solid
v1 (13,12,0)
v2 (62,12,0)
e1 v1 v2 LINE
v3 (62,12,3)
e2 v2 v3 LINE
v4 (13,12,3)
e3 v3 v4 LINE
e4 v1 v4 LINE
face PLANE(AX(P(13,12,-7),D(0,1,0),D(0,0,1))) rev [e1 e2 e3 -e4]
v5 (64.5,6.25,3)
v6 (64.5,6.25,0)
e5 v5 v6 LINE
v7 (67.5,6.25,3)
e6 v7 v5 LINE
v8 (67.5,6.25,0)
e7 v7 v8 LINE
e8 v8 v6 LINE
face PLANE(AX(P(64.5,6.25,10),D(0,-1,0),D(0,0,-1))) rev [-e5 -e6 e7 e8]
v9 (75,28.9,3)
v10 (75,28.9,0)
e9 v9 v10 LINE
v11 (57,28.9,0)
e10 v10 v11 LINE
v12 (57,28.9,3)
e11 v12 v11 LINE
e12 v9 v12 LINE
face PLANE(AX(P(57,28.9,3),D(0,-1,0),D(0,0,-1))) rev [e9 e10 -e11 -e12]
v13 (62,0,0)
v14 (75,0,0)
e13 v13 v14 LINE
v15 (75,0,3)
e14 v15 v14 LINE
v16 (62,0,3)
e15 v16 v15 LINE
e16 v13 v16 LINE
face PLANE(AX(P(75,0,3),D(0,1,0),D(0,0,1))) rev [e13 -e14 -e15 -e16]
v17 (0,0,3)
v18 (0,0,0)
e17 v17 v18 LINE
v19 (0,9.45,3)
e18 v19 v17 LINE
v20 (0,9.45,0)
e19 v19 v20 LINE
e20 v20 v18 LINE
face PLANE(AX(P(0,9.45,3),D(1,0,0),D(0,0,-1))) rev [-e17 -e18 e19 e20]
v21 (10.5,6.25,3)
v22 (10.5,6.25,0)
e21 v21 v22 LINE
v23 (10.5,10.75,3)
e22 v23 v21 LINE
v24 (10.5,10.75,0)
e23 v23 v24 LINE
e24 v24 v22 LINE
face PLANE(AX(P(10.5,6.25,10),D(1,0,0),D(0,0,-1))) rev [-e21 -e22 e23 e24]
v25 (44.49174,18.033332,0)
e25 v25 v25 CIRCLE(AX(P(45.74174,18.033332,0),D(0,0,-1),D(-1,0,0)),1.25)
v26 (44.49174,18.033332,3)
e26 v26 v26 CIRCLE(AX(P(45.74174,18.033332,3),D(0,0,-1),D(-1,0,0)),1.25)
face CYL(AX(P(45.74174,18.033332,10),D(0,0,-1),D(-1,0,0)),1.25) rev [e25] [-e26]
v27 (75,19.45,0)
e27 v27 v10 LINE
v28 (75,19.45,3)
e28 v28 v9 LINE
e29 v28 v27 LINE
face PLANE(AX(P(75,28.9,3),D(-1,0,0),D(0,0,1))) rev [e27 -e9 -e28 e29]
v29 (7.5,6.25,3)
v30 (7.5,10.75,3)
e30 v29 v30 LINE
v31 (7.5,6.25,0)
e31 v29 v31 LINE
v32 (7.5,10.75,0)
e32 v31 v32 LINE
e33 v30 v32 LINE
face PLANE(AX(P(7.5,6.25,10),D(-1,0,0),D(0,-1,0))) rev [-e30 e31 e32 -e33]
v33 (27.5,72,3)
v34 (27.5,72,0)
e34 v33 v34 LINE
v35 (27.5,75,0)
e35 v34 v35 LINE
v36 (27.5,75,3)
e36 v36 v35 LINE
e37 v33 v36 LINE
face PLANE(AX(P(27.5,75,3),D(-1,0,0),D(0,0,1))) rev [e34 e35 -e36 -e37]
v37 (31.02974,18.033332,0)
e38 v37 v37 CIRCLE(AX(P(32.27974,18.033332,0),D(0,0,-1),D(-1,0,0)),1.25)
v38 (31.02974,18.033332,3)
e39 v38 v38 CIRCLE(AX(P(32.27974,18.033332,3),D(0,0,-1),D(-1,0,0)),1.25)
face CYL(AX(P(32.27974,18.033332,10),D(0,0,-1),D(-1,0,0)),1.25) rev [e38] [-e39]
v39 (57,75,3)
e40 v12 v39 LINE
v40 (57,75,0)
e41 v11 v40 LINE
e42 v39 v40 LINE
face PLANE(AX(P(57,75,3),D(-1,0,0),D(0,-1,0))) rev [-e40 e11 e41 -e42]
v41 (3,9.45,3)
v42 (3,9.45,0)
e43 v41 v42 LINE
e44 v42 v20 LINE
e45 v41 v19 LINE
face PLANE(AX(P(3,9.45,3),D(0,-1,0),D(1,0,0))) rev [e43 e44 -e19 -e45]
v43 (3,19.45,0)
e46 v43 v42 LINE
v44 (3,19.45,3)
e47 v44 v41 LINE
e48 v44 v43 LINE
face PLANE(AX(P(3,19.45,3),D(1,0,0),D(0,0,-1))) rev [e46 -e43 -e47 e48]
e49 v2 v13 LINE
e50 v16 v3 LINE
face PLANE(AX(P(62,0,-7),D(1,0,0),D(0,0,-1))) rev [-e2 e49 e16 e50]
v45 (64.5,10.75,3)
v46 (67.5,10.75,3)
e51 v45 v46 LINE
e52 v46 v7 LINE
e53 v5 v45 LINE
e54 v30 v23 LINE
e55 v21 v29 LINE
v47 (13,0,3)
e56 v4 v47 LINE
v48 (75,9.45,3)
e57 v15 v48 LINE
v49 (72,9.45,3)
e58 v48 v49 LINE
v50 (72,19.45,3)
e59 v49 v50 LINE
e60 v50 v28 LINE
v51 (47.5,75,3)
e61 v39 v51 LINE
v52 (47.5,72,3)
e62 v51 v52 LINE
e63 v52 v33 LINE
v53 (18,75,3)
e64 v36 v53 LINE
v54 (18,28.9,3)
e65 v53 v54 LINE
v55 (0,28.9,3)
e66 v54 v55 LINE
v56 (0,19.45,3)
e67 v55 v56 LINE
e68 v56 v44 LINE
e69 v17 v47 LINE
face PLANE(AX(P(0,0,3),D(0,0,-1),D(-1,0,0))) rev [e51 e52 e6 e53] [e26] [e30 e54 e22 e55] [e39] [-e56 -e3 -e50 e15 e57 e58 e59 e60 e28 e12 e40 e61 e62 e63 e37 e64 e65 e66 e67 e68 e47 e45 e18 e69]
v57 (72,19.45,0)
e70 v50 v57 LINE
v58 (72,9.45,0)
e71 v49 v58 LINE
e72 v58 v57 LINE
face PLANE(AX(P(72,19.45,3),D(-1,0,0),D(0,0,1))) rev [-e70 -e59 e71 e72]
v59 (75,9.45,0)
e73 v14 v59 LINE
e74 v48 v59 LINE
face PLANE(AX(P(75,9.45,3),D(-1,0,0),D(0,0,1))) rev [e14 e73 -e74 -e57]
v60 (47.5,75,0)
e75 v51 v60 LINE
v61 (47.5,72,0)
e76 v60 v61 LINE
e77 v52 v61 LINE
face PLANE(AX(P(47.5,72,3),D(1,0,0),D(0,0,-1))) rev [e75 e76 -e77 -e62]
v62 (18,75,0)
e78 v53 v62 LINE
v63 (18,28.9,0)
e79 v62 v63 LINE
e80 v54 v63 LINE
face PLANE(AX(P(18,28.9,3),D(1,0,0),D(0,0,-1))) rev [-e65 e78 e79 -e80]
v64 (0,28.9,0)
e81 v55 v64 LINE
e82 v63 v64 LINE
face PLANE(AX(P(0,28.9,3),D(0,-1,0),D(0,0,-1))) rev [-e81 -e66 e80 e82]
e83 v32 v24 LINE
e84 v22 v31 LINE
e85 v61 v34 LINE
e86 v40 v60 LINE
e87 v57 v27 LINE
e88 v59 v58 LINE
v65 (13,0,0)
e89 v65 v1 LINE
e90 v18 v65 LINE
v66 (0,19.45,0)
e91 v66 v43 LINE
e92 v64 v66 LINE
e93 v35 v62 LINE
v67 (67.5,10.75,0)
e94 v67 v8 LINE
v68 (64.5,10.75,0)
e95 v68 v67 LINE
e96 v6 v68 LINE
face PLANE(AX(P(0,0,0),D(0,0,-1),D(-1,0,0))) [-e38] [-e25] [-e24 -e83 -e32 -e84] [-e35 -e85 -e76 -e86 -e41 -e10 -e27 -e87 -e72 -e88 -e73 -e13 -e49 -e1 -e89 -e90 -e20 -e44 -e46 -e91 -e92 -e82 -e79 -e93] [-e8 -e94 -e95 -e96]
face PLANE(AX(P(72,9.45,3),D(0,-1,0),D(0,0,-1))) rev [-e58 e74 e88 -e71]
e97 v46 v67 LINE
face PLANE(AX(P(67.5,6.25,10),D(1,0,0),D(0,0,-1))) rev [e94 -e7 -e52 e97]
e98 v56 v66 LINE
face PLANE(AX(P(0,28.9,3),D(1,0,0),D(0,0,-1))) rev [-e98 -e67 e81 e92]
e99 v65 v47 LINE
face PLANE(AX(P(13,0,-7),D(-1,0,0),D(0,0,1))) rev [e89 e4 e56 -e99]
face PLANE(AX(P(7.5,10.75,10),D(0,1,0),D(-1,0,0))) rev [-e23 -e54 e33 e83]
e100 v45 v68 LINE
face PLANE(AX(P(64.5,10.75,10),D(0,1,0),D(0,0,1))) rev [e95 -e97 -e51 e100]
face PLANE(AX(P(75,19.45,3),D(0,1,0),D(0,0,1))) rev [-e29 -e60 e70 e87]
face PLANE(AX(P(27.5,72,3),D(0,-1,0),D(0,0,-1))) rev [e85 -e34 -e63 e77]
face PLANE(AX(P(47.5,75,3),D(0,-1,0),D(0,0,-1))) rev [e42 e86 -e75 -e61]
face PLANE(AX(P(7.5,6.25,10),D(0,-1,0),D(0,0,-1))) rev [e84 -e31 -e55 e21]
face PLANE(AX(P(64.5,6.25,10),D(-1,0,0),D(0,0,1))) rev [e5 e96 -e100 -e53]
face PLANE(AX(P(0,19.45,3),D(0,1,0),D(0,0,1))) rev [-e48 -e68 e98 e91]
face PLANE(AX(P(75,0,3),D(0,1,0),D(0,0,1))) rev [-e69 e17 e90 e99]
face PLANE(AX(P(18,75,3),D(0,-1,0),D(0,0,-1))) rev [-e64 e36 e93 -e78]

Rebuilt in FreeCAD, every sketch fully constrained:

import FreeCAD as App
import Part
import Sketcher
from FreeCAD import Vector
Q = App.Units.Quantity


def add_polygon(sketch, points):
    """Adds a closed chain of lines whose ends are joined by coincident constraints."""
    first, n = sketch.GeometryCount, len(points)
    for a, b in zip(points, points[1:] + points[:1]):
        sketch.addGeometry(Part.LineSegment(App.Vector(*a, 0), App.Vector(*b, 0)), False)
    for i in range(n):
        sketch.addConstraint(Sketcher.Constraint("Coincident", first + i, 2, first + (i + 1) % n, 1))

doc = App.newDocument("Part")
body = doc.addObject("PartDesign::Body", "Body")

sketch1 = body.newObject("Sketcher::SketchObject", "Sketch")
sketch1.AttachmentSupport = (doc.getObject("XY_Plane"), [""])
sketch1.MapMode = "FlatFace"
add_polygon(sketch1, [(18, 28.9), (0, 28.9), (0, 19.45), (3, 19.45), (3, 9.45), (0, 9.45), (0, 0), (75, 0), (75, 9.45), (72, 9.45), (72, 19.45), (75, 19.45), (75, 28.9), (57, 28.9), (57, 75), (47.5, 75), (47.5, 72), (27.5, 72), (27.5, 75), (18, 75)])
sketch1.addConstraint(Sketcher.Constraint("Horizontal", 0))
sketch1.addConstraint(Sketcher.Constraint("Vertical", 1))
sketch1.addConstraint(Sketcher.Constraint("Horizontal", 2))
sketch1.addConstraint(Sketcher.Constraint("Vertical", 3))
sketch1.addConstraint(Sketcher.Constraint("Horizontal", 4))
sketch1.addConstraint(Sketcher.Constraint("Vertical", 5))
sketch1.addConstraint(Sketcher.Constraint("Horizontal", 6))
sketch1.addConstraint(Sketcher.Constraint("Vertical", 7))
sketch1.addConstraint(Sketcher.Constraint("Horizontal", 8))
sketch1.addConstraint(Sketcher.Constraint("Vertical", 9))
sketch1.addConstraint(Sketcher.Constraint("Horizontal", 10))
sketch1.addConstraint(Sketcher.Constraint("Vertical", 11))
sketch1.addConstraint(Sketcher.Constraint("Horizontal", 12))
sketch1.addConstraint(Sketcher.Constraint("Vertical", 13))
sketch1.addConstraint(Sketcher.Constraint("Horizontal", 14))
sketch1.addConstraint(Sketcher.Constraint("Vertical", 15))
sketch1.addConstraint(Sketcher.Constraint("Horizontal", 16))
sketch1.addConstraint(Sketcher.Constraint("Vertical", 17))
sketch1.addConstraint(Sketcher.Constraint("Horizontal", 18))
sketch1.addConstraint(Sketcher.Constraint("Vertical", 19))
sketch1.addConstraint(Sketcher.Constraint("Coincident", 5, 2, -1, 1))
sketch1.addConstraint(Sketcher.Constraint("PointOnObject", 0, 2, -2))
sketch1.addConstraint(Sketcher.Constraint("Horizontal", 4, 2, 7, 2))
sketch1.addConstraint(Sketcher.Constraint("Horizontal", 2, 2, 9, 2))
sketch1.addConstraint(Sketcher.Constraint("Horizontal", 0, 2, 11, 2))
sketch1.addConstraint(Sketcher.Constraint("Horizontal", 14, 2, 17, 2))
sketch1.addConstraint(Sketcher.Constraint("Vertical", 7, 2, 10, 2))
sketch1.addConstraint(Sketcher.Constraint("Equal", 4, 8))
sketch1.addConstraint(Sketcher.Constraint("Equal", 0, 12))
sketch1.addConstraint(Sketcher.Constraint("Equal", 14, 18))
sketch1.addConstraint(Sketcher.Constraint("Equal", 1, 5))
sketch1.addConstraint(Sketcher.Constraint("Equal", 10, 15))
sketch1.addConstraint(Sketcher.Constraint("DistanceX", 0, 2, 0, 1, Q("18 mm")))
sketch1.addConstraint(Sketcher.Constraint("DistanceX", 2, 1, 2, 2, Q("3 mm")))
sketch1.addConstraint(Sketcher.Constraint("DistanceX", 6, 1, 6, 2, Q("75 mm")))
sketch1.addConstraint(Sketcher.Constraint("DistanceX", 16, 2, 16, 1, Q("20 mm")))
sketch1.addConstraint(Sketcher.Constraint("DistanceY", 3, 2, 3, 1, Q("10 mm")))
sketch1.addConstraint(Sketcher.Constraint("DistanceY", 13, 1, 13, 2, Q("46.1 mm")))
sketch1.addConstraint(Sketcher.Constraint("DistanceY", -1, 1, 13, 2, Q("75 mm")))
pad1 = body.newObject("PartDesign::Pad", "Pad")
pad1.Profile = sketch1
pad1.Length = 3

sketch2 = body.newObject("Sketcher::SketchObject", "Sketch001")
sketch2.AttachmentSupport = (doc.getObject("XY_Plane"), [""])
sketch2.MapMode = "FlatFace"
sketch2.AttachmentOffset = App.Placement(Vector(0, 0, 3), App.Rotation())
add_polygon(sketch2, [(13, 12), (13, 0), (62, 0), (62, 12)])
sketch2.addConstraint(Sketcher.Constraint("Vertical", 0))
sketch2.addConstraint(Sketcher.Constraint("Horizontal", 1))
sketch2.addConstraint(Sketcher.Constraint("Vertical", 2))
sketch2.addConstraint(Sketcher.Constraint("Horizontal", 3))
sketch2.addConstraint(Sketcher.Constraint("PointOnObject", 0, 2, -1))
sketch2.addConstraint(Sketcher.Constraint("DistanceX", 1, 1, 1, 2, Q("49 mm")))
sketch2.addConstraint(Sketcher.Constraint("DistanceY", 0, 2, 0, 1, Q("12 mm")))
sketch2.addConstraint(Sketcher.Constraint("DistanceX", -1, 1, 0, 2, Q("13 mm")))
pocket1 = body.newObject("PartDesign::Pocket", "Pocket")
pocket1.Profile = sketch2
pocket1.Length = 10

sketch3 = body.newObject("Sketcher::SketchObject", "Sketch002")
sketch3.AttachmentSupport = (doc.getObject("XY_Plane"), [""])
sketch3.MapMode = "FlatFace"
sketch3.addGeometry(Part.Circle(Vector(32.27974, 18.033332, 0), Vector(0, 0, 1), 1.25), False)
sketch3.addGeometry(Part.Circle(Vector(45.74174, 18.033332, 0), Vector(0, 0, 1), 1.25), False)
sketch3.addConstraint(Sketcher.Constraint("Equal", 0, 1))
sketch3.addConstraint(Sketcher.Constraint("Horizontal", 0, 3, 1, 3))
sketch3.addConstraint(Sketcher.Constraint("Diameter", 0, Q("2.5 mm")))
sketch3.addConstraint(Sketcher.Constraint("DistanceX", 0, 3, 1, 3, Q("13.462 mm")))
sketch3.addConstraint(Sketcher.Constraint("DistanceX", -1, 1, 0, 3, Q("32.27974 mm")))
sketch3.addConstraint(Sketcher.Constraint("DistanceY", -1, 1, 0, 3, Q("18.033332 mm")))
pocket2 = body.newObject("PartDesign::Pocket", "Pocket001")
pocket2.Profile = sketch3
pocket2.Length = 10
pocket2.Reversed = True

sketch4 = body.newObject("Sketcher::SketchObject", "Sketch003")
sketch4.AttachmentSupport = (doc.getObject("XY_Plane"), [""])
sketch4.MapMode = "FlatFace"
add_polygon(sketch4, [(10.5, 10.75), (10.5, 6.25), (7.5, 6.25), (7.5, 10.75)])
add_polygon(sketch4, [(67.5, 10.75), (67.5, 6.25), (64.5, 6.25), (64.5, 10.75)])
sketch4.addConstraint(Sketcher.Constraint("Vertical", 0))
sketch4.addConstraint(Sketcher.Constraint("Horizontal", 1))
sketch4.addConstraint(Sketcher.Constraint("Vertical", 2))
sketch4.addConstraint(Sketcher.Constraint("Horizontal", 3))
sketch4.addConstraint(Sketcher.Constraint("Vertical", 4))
sketch4.addConstraint(Sketcher.Constraint("Horizontal", 5))
sketch4.addConstraint(Sketcher.Constraint("Vertical", 6))
sketch4.addConstraint(Sketcher.Constraint("Horizontal", 7))
sketch4.addConstraint(Sketcher.Constraint("Horizontal", 1, 2, 4, 2))
sketch4.addConstraint(Sketcher.Constraint("Horizontal", 3, 2, 6, 2))
sketch4.addConstraint(Sketcher.Constraint("Equal", 3, 5))
sketch4.addConstraint(Sketcher.Constraint("DistanceX", 1, 2, 1, 1, Q("3 mm")))
sketch4.addConstraint(Sketcher.Constraint("DistanceY", 0, 2, 0, 1, Q("4.5 mm")))
sketch4.addConstraint(Sketcher.Constraint("DistanceX", 0, 2, 4, 2, Q("57 mm")))
sketch4.addConstraint(Sketcher.Constraint("DistanceX", -1, 1, 0, 2, Q("10.5 mm")))
sketch4.addConstraint(Sketcher.Constraint("DistanceY", -1, 1, 0, 2, Q("6.25 mm")))
pocket3 = body.newObject("PartDesign::Pocket", "Pocket002")
pocket3.Profile = sketch4
pocket3.Length = 10
pocket3.Reversed = True

doc.recompute()
